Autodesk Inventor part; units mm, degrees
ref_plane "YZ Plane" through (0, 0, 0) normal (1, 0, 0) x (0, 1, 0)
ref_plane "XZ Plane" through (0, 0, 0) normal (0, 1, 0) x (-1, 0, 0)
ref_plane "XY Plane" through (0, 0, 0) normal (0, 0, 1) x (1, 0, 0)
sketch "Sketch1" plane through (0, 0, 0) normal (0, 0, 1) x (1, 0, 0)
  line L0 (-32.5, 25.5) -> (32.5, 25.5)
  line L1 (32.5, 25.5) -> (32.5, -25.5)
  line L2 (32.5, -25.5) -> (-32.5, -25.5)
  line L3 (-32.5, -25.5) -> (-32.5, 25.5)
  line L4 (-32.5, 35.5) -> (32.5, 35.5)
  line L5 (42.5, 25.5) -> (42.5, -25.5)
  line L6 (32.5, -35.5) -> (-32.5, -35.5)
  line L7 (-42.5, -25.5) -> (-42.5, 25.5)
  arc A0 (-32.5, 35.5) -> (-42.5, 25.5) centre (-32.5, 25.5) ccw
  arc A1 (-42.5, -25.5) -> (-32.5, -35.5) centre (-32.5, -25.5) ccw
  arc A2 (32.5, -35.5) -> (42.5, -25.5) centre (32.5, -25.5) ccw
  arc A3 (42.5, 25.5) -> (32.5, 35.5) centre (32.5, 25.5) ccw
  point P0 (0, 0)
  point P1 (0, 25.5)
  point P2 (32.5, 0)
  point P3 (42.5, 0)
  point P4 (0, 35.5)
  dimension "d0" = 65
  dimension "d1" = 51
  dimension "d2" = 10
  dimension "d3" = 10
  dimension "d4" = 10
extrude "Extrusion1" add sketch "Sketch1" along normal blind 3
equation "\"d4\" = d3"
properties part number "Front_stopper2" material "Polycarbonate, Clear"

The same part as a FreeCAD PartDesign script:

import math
import FreeCAD as App
import Part
import Sketcher
Q = App.Units.Quantity


def add_polygon(sketch, points):
    """Adds a closed chain of lines whose ends are joined by coincident constraints."""
    first, n = sketch.GeometryCount, len(points)
    for a, b in zip(points, points[1:] + points[:1]):
        sketch.addGeometry(Part.LineSegment(App.Vector(*a, 0), App.Vector(*b, 0)), False)
    for i in range(n):
        sketch.addConstraint(Sketcher.Constraint("Coincident", first + i, 2, first + (i + 1) % n, 1))

doc = App.newDocument("Part")
params = doc.addObject("Spreadsheet::Sheet", "Params")
for row, (alias, value) in enumerate([
    ("sketch1_radius", "10 mm"),
    ("sketch1_width", "65 mm"),
    ("sketch1_height", "51 mm"),
    ("pad1_length", "3 mm"),
], start=1):
    params.set(f"A{row}", alias)
    params.set(f"B{row}", "=" + value)
    params.setAlias(f"B{row}", alias)

body = doc.addObject("PartDesign::Body", "Body")

sketch1 = body.newObject("Sketcher::SketchObject", "Sketch")
sketch1.AttachmentSupport = (doc.getObject("XY_Plane"), [""])
sketch1.MapMode = "FlatFace"
sketch1.addGeometry(Part.LineSegment(App.Vector(32, 36, 0), App.Vector(-32, 36, 0)), False)
sketch1.addGeometry(Part.ArcOfCircle(Part.Circle(App.Vector(-32, 26, 0), App.Vector(0, 0, 1), 10), math.radians(90), math.radians(180)), False)
sketch1.addGeometry(Part.LineSegment(App.Vector(-42, 26, 0), App.Vector(-42, -26, 0)), False)
sketch1.addGeometry(Part.ArcOfCircle(Part.Circle(App.Vector(-32, -26, 0), App.Vector(0, 0, 1), 10), math.radians(180), math.radians(270)), False)
sketch1.addGeometry(Part.LineSegment(App.Vector(-32, -36, 0), App.Vector(32, -36, 0)), False)
sketch1.addGeometry(Part.ArcOfCircle(Part.Circle(App.Vector(32, -26, 0), App.Vector(0, 0, 1), 10), math.radians(-90), math.radians(0)), False)
sketch1.addGeometry(Part.LineSegment(App.Vector(42, -26, 0), App.Vector(42, 26, 0)), False)
sketch1.addGeometry(Part.ArcOfCircle(Part.Circle(App.Vector(32, 26, 0), App.Vector(0, 0, 1), 10), math.radians(0), math.radians(90)), False)
add_polygon(sketch1, [(-32, -26), (-32, 26), (32, 26), (32, -26)])
sketch1.addConstraint([
    Sketcher.Constraint("Tangent", 0, 2, 1, 1),
    Sketcher.Constraint("Tangent", 1, 2, 2, 1),
    Sketcher.Constraint("Tangent", 2, 2, 3, 1),
    Sketcher.Constraint("Tangent", 3, 2, 4, 1),
    Sketcher.Constraint("Tangent", 4, 2, 5, 1),
    Sketcher.Constraint("Tangent", 5, 2, 6, 1),
    Sketcher.Constraint("Tangent", 6, 2, 7, 1),
    Sketcher.Constraint("Tangent", 7, 2, 0, 1),
    Sketcher.Constraint("Horizontal", 0),
    Sketcher.Constraint("Vertical", 2),
    Sketcher.Constraint("Horizontal", 4),
    Sketcher.Constraint("Vertical", 6),
    Sketcher.Constraint("Vertical", 8),
    Sketcher.Constraint("Horizontal", 9),
    Sketcher.Constraint("Vertical", 10),
    Sketcher.Constraint("Horizontal", 11),
    Sketcher.Constraint("Coincident", 8, 2, 1, 3),
    Sketcher.Constraint("Coincident", 9, 2, 7, 3),
    Sketcher.Constraint("Coincident", 10, 2, 5, 3),
    Sketcher.Constraint("Equal", 1, 3),
    Sketcher.Constraint("Symmetric", 1, 3, 5, 3, -1, 1),
    Sketcher.Constraint("Radius", 1, Q("10 mm")),
    Sketcher.Constraint("DistanceX", 0, 2, 0, 1, Q("65 mm")),
    Sketcher.Constraint("DistanceY", 2, 2, 2, 1, Q("51 mm")),
])
sketch1.setExpression("Constraints[25]", "Params.sketch1_radius")
sketch1.setExpression("Constraints[26]", "Params.sketch1_width")
sketch1.setExpression("Constraints[27]", "Params.sketch1_height")
pad1 = body.newObject("PartDesign::Pad", "Pad")
pad1.Profile = sketch1
pad1.setExpression("Length", "Params.pad1_length")

doc.recompute()
